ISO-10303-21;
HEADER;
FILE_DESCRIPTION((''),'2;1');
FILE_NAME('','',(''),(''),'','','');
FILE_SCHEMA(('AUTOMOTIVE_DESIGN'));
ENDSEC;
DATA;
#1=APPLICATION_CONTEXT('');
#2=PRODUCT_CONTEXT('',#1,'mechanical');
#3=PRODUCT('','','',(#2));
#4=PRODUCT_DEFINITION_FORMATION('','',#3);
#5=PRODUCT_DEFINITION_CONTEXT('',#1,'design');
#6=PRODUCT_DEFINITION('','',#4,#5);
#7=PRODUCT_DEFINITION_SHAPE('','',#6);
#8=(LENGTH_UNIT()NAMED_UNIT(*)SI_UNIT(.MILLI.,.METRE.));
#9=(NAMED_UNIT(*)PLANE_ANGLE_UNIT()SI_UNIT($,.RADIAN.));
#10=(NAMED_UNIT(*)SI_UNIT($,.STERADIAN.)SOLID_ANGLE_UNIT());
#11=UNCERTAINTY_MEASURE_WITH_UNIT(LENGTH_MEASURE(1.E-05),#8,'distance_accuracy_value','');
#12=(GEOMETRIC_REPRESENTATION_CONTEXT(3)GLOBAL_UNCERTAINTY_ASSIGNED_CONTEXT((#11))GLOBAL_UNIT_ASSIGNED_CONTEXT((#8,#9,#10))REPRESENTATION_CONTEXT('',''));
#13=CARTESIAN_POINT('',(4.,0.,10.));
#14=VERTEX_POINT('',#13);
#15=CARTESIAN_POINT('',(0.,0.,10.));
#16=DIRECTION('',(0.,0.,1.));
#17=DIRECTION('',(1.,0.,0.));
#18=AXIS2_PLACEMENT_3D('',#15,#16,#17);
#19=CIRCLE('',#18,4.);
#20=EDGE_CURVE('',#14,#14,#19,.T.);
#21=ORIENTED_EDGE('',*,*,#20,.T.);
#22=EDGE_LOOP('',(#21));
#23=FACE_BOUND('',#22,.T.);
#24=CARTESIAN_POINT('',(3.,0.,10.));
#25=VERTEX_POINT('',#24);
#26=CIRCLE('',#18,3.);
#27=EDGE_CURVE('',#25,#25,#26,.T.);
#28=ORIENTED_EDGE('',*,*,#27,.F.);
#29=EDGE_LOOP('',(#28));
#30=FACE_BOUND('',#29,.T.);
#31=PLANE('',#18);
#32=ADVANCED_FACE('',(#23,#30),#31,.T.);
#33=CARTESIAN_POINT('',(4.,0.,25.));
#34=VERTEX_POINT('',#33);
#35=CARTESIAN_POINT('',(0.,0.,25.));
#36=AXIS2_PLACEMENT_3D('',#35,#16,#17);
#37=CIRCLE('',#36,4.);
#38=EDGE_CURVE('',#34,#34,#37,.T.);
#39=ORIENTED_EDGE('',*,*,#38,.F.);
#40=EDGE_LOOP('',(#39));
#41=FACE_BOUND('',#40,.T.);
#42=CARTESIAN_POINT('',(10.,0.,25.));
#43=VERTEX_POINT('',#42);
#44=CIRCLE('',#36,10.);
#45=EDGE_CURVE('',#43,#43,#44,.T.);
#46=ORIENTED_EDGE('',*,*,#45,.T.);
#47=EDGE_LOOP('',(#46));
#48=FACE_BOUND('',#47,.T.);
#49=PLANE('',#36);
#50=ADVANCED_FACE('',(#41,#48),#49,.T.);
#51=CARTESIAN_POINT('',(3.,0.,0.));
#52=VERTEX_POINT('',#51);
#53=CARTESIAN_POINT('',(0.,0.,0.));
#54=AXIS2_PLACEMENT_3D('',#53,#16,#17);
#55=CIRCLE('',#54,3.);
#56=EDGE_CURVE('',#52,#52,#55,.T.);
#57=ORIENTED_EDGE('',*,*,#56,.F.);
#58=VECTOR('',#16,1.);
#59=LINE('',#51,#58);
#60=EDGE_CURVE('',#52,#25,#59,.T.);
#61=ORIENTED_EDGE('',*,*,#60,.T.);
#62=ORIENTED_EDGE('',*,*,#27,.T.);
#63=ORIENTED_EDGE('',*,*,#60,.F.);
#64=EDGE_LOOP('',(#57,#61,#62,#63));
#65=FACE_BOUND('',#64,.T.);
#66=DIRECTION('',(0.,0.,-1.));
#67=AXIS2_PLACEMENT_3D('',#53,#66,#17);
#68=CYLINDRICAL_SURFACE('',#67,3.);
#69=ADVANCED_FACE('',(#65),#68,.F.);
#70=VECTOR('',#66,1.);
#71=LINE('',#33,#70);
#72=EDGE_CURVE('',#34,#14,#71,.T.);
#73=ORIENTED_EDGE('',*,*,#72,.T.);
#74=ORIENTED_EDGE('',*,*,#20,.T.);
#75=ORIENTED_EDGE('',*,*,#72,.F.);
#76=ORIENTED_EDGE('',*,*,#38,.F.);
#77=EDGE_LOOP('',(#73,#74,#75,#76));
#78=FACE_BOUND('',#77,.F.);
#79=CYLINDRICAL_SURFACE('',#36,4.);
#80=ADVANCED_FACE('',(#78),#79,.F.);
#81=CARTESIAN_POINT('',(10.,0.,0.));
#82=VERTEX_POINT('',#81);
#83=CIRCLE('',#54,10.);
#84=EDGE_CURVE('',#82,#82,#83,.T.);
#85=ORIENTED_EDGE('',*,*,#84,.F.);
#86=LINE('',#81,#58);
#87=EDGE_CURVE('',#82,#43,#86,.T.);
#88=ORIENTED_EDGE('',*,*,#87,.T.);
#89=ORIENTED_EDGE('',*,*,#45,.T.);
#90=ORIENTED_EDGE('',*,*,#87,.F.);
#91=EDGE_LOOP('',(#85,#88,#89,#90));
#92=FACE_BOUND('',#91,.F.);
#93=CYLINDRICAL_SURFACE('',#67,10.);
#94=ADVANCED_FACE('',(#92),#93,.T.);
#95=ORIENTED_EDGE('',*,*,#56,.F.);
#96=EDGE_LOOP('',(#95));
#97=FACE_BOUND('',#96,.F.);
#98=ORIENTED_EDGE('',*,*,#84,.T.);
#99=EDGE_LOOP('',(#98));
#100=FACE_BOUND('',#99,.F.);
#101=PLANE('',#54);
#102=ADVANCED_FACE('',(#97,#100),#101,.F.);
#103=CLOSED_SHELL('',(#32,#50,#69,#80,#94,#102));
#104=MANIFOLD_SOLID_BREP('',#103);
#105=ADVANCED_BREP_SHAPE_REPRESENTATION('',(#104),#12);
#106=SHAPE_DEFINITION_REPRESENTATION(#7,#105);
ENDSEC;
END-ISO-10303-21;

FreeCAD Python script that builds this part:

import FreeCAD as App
import Part
import Sketcher

doc = App.newDocument("Part")
body = doc.addObject("PartDesign::Body", "Body")

sketch1 = body.newObject("Sketcher::SketchObject", "Sketch")
sketch1.AttachmentSupport = (doc.getObject("XY_Plane"), [""])
sketch1.MapMode = "FlatFace"
sketch1.addGeometry([
    Part.Circle(App.Vector(0, 0, 0), App.Vector(0, 0, 1), 10),
    Part.Circle(App.Vector(0, 0, 0), App.Vector(0, 0, 1), 3),
], False)
sketch1.addConstraint([
    Sketcher.Constraint("Coincident", 0, 3, -1, 1),
    Sketcher.Constraint("Coincident", 1, 3, -1, 1),
    Sketcher.Constraint("Diameter", 0, 20.0),
    Sketcher.Constraint("Diameter", 1, 6.0),
])
pad1 = body.newObject("PartDesign::Pad", "Pad")
pad1.Profile = sketch1
pad1.Length = 25

sketch2 = body.newObject("Sketcher::SketchObject", "Sketch001")
sketch2.AttachmentSupport = (doc.getObject("XY_Plane"), [""])
sketch2.MapMode = "FlatFace"
sketch2.AttachmentOffset = App.Placement(App.Vector(0, 0, 25), App.Rotation())
sketch2.addGeometry([
    Part.Circle(App.Vector(0, 0, 0), App.Vector(0, 0, 1), 4),
    Part.Circle(App.Vector(0, 0, 0), App.Vector(0, 0, 1), 3),
], False)
sketch2.addConstraint([
    Sketcher.Constraint("Coincident", 0, 3, -1, 1),
    Sketcher.Constraint("Coincident", 1, 3, -1, 1),
    Sketcher.Constraint("Diameter", 0, 8.0),
    Sketcher.Constraint("Diameter", 1, 6.0),
])
pocket1 = body.newObject("PartDesign::Pocket", "Pocket")
pocket1.Profile = sketch2
pocket1.Length = 15

doc.recompute()
